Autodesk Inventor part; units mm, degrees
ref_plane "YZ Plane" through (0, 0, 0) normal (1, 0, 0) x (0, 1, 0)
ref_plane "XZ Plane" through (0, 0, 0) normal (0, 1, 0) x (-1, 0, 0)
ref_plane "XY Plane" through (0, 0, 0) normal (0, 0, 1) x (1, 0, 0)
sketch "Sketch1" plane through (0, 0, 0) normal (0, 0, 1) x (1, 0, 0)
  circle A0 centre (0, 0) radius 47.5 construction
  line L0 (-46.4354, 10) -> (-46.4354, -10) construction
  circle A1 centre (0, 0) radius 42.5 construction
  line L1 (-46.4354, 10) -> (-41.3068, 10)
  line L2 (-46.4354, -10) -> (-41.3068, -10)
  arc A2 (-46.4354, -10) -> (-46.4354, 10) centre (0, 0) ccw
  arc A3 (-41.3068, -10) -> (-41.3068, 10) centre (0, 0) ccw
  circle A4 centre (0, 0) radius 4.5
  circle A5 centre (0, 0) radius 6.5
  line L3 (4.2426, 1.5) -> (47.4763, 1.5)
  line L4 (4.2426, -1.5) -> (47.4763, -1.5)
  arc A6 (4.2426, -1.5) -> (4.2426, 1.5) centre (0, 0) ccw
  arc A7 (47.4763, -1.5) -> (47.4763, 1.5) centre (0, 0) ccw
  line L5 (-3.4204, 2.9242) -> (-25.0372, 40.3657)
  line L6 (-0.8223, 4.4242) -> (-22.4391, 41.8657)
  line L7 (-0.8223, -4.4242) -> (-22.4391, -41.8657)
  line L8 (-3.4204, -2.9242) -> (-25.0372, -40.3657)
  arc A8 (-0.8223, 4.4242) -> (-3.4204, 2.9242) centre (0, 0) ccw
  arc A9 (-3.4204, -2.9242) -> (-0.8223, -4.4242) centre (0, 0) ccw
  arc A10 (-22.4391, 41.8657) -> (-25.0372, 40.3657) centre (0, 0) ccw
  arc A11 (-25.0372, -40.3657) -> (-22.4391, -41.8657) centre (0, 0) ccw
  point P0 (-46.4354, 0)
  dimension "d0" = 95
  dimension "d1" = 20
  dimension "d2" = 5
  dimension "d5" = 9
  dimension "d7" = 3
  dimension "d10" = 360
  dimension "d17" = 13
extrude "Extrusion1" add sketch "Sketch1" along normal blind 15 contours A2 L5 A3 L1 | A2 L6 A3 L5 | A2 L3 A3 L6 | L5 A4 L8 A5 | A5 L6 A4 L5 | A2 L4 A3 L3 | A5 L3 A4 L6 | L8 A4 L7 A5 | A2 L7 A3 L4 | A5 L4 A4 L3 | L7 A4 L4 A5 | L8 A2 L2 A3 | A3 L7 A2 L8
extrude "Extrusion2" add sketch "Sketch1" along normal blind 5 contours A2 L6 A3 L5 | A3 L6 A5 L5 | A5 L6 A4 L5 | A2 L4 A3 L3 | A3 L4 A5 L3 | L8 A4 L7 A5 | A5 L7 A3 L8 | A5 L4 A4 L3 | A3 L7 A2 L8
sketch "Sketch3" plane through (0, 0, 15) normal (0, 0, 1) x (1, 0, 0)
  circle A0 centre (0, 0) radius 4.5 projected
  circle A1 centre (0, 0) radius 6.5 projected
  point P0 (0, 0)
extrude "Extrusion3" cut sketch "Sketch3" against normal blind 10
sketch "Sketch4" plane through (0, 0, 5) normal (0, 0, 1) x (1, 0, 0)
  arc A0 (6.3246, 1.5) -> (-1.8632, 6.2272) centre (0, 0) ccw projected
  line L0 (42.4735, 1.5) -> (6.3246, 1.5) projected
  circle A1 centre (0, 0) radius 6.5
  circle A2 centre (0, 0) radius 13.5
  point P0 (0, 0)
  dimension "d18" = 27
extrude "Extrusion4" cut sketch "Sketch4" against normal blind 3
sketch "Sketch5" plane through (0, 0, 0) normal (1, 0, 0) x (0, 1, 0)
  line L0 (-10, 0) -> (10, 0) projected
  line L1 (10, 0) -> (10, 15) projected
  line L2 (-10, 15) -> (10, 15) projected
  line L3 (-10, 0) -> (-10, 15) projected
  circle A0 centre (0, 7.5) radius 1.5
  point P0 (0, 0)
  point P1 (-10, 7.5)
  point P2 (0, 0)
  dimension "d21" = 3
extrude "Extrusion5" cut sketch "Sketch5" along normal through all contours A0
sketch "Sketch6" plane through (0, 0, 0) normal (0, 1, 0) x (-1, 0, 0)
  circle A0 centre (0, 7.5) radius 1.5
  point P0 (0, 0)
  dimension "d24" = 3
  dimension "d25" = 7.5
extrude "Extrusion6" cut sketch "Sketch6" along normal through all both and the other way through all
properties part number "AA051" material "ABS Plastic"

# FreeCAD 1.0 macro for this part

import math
import FreeCAD as App
import Part
import Sketcher

V = App.Vector
Q = App.Units.Quantity

doc = App.newDocument("Part")
body = doc.addObject("PartDesign::Body", "Body")
body.AllowCompound = True

# Sketch on XY plane
sketch1 = body.newObject("Sketcher::SketchObject", "Sketch")
sketch1.AttachmentSupport = (doc.getObject("XY_Plane"), [""])
sketch1.MapMode = "FlatFace"
sketch1.addGeometry([
    Part.LineSegment(V(-46.4, 10, 0), V(-41.3, 10, 0)),  # 0
    Part.ArcOfCircle(Part.Circle(V(0, 0, 0), V(0, 0, 1), 42.5), math.radians(-166), math.radians(166)),  # 1
    Part.LineSegment(V(-41.3, -10, 0), V(-46.4, -10, 0)),  # 2
    Part.ArcOfCircle(Part.Circle(V(0, 0, 0), V(0, 0, 1), 47.5), math.radians(-168), math.radians(168)),  # 3
    Part.Circle(V(0, 0, 0), V(0, 0, 1), 6.5),  # 4
    Part.Circle(V(0, 0, 0), V(0, 0, 1), 4.5),  # 5
], False)
sketch1.addConstraint([
    Sketcher.Constraint("Coincident", 0, 2, 1, 2),
    Sketcher.Constraint("Coincident", 1, 1, 2, 1),
    Sketcher.Constraint("Coincident", 2, 2, 3, 1),
    Sketcher.Constraint("Coincident", 3, 2, 0, 1),
    Sketcher.Constraint("Horizontal", 0),
    Sketcher.Constraint("Horizontal", 2),
    Sketcher.Constraint("Coincident", 1, 3, -1, 1),
    Sketcher.Constraint("Coincident", 3, 3, -1, 1),
    Sketcher.Constraint("Coincident", 4, 3, -1, 1),
    Sketcher.Constraint("Coincident", 5, 3, -1, 1),
    Sketcher.Constraint("Vertical", 0, 2, 1, 1),
    Sketcher.Constraint("Diameter", 4, 13.0),
    Sketcher.Constraint("Diameter", 5, 9.0),
    Sketcher.Constraint("Radius", 3, 47.5),
    Sketcher.Constraint("DistanceY", 1, 1, 0, 2, 20.0),
    Sketcher.Constraint("Radius", 1, 42.5),
])
pad1 = body.newObject("PartDesign::Pad", "Pad")
pad1.Profile = sketch1
pad1.Length = 15

# Sketch on XY plane
sketch2 = body.newObject("Sketcher::SketchObject", "Sketch001")
sketch2.AttachmentSupport = (doc.getObject("XY_Plane"), [""])
sketch2.MapMode = "FlatFace"
sketch2.addGeometry([
    Part.ArcOfCircle(Part.Circle(V(0, 0, 0), V(0, 0, 1), 47.5), math.radians(118.19), math.radians(121.81)),  # 0
    Part.LineSegment(V(-25, 40.4, 0), V(-3.4, 2.9, 0)),  # 1
    Part.ArcOfCircle(Part.Circle(V(0, 0, 0), V(0, 0, 1), 4.5), math.radians(101), math.radians(139)),  # 2
    Part.LineSegment(V(-0.8, 4.4, 0), V(-22.4, 41.9, 0)),  # 3
    Part.ArcOfCircle(Part.Circle(V(0, 0, 0), V(0, 0, 1), 47.5), math.radians(-1.81), math.radians(1.81)),  # 4
    Part.LineSegment(V(47.5, 1.5, 0), V(4.2, 1.5, 0)),  # 5
    Part.ArcOfCircle(Part.Circle(V(0, 0, 0), V(0, 0, 1), 4.5), math.radians(-19), math.radians(19)),  # 6
    Part.LineSegment(V(4.2, -1.5, 0), V(47.5, -1.5, 0)),  # 7
    Part.LineSegment(V(-3.4, -2.9, 0), V(-25, -40.4, 0)),  # 8
    Part.ArcOfCircle(Part.Circle(V(0, 0, 0), V(0, 0, 1), 47.5), math.radians(-121.81), math.radians(-118.19)),  # 9
    Part.LineSegment(V(-22.4, -41.9, 0), V(-0.8, -4.4, 0)),  # 10
    Part.ArcOfCircle(Part.Circle(V(0, 0, 0), V(0, 0, 1), 4.5), math.radians(-139), math.radians(-101)),  # 11
], False)
sketch2.addConstraint([
    Sketcher.Constraint("Coincident", 0, 2, 1, 1),
    Sketcher.Constraint("Coincident", 1, 2, 2, 2),
    Sketcher.Constraint("Coincident", 2, 1, 3, 1),
    Sketcher.Constraint("Coincident", 3, 2, 0, 1),
    Sketcher.Constraint("Coincident", 4, 2, 5, 1),
    Sketcher.Constraint("Coincident", 5, 2, 6, 2),
    Sketcher.Constraint("Coincident", 6, 1, 7, 1),
    Sketcher.Constraint("Coincident", 7, 2, 4, 1),
    Sketcher.Constraint("Coincident", 8, 2, 9, 1),
    Sketcher.Constraint("Coincident", 9, 2, 10, 1),
    Sketcher.Constraint("Coincident", 10, 2, 11, 2),
    Sketcher.Constraint("Coincident", 11, 1, 8, 1),
    Sketcher.Constraint("Horizontal", 5),
    Sketcher.Constraint("Horizontal", 7),
    Sketcher.Constraint("Coincident", 0, 3, -1, 1),
    Sketcher.Constraint("Coincident", 2, 3, -1, 1),
    Sketcher.Constraint("Coincident", 4, 3, -1, 1),
    Sketcher.Constraint("Coincident", 6, 3, -1, 1),
    Sketcher.Constraint("Coincident", 9, 3, -1, 1),
    Sketcher.Constraint("Coincident", 11, 3, -1, 1),
    Sketcher.Constraint("Equal", 0, 4),
    Sketcher.Constraint("Equal", 2, 6),
    Sketcher.Constraint("Equal", 4, 9),
    Sketcher.Constraint("Equal", 6, 11),
    Sketcher.Constraint("Parallel", 1, 3),
    Sketcher.Constraint("Parallel", 8, 10),
    Sketcher.Constraint("Vertical", 5, 2, 6, 1),
    Sketcher.Constraint("Vertical", 0, 2, 8, 2),
    Sketcher.Constraint("Vertical", 3, 2, 9, 2),
    Sketcher.Constraint("Vertical", 2, 1, 10, 2),
    Sketcher.Constraint("Equal", 1, 3),
    Sketcher.Constraint("Radius", 0, 47.5),
    Sketcher.Constraint("Radius", 2, 4.5),
    Sketcher.Constraint("DistanceY", 6, 1, 5, 2, 3.0),
    Sketcher.Constraint("Angle", 1, Q("-60 deg")),
    Sketcher.Constraint("DistanceY", 1, 2, 2, 1, 1.5),
])
pad2 = body.newObject("PartDesign::Pad", "Pad001")
pad2.Profile = sketch2
pad2.Length = 5

# Sketch on XY plane
sketch3 = body.newObject("Sketcher::SketchObject", "Sketch002")
sketch3.AttachmentSupport = (doc.getObject("XY_Plane"), [""])
sketch3.MapMode = "FlatFace"
sketch3.AttachmentOffset = App.Placement(V(0, 0, 15), App.Rotation())
sketch3.addGeometry([
    Part.Circle(V(0, 0, 0), V(0, 0, 1), 6.5),
    Part.Circle(V(0, 0, 0), V(0, 0, 1), 4.5),
], False)
sketch3.addConstraint([
    Sketcher.Constraint("Coincident", 0, 3, -1, 1),
    Sketcher.Constraint("Coincident", 1, 3, -1, 1),
    Sketcher.Constraint("Diameter", 0, 13.0),
    Sketcher.Constraint("Diameter", 1, 9.0),
])
pocket1 = body.newObject("PartDesign::Pocket", "Pocket")
pocket1.Profile = sketch3
pocket1.Length = 10

# Sketch on XY plane
sketch4 = body.newObject("Sketcher::SketchObject", "Sketch003")
sketch4.AttachmentSupport = (doc.getObject("XY_Plane"), [""])
sketch4.MapMode = "FlatFace"
sketch4.AttachmentOffset = App.Placement(V(0, 0, 5), App.Rotation())
sketch4.addGeometry([
    Part.Circle(V(0, 0, 0), V(0, 0, 1), 14),
    Part.ArcOfCircle(Part.Circle(V(0, 0, 0), V(0, 0, 1), 6), math.radians(13), math.radians(107)),
    Part.ArcOfCircle(Part.Circle(V(0, 0, 0), V(0, 0, 1), 6), math.radians(107), math.radians(373)),
], False)
sketch4.addConstraint([
    Sketcher.Constraint("Tangent", 1, 1, 2, 2),
    Sketcher.Constraint("Coincident", 2, 1, 1, 2),
    Sketcher.Constraint("Coincident", 0, 3, -1, 1),
    Sketcher.Constraint("Coincident", 1, 3, -1, 1),
    Sketcher.Constraint("Diameter", 0, 27.0),
    Sketcher.Constraint("Radius", 1, 6.5),
    Sketcher.Constraint("DistanceY", -1, 1, 1, 1, 1.5),
    Sketcher.Constraint("DistanceX", 2, 1, -1, 1, 1.8632),
])
pocket2 = body.newObject("PartDesign::Pocket", "Pocket001")
pocket2.Profile = sketch4
pocket2.Length = 3

# Sketch on YZ plane
sketch5 = body.newObject("Sketcher::SketchObject", "Sketch004")
sketch5.AttachmentSupport = (doc.getObject("YZ_Plane"), [""])
sketch5.MapMode = "FlatFace"
sketch5.addGeometry(Part.Circle(V(0, 7.5, 0), V(0, 0, 1), 1.5), False)
sketch5.addConstraint([
    Sketcher.Constraint("PointOnObject", 0, 3, -2),
    Sketcher.Constraint("Diameter", 0, 3.0),
    Sketcher.Constraint("DistanceY", -1, 1, 0, 3, 7.5),
])
pocket3 = body.newObject("PartDesign::Pocket", "Pocket002")
pocket3.Profile = sketch5
pocket3.Type = "ThroughAll"
pocket3.Reversed = True

# Sketch on XZ plane
sketch6 = body.newObject("Sketcher::SketchObject", "Sketch005")
sketch6.AttachmentSupport = (doc.getObject("XZ_Plane"), [""])
sketch6.MapMode = "FlatFace"
sketch6.addGeometry(Part.Circle(V(0, 7.5, 0), V(0, 0, 1), 1.5), False)
sketch6.addConstraint([
    Sketcher.Constraint("PointOnObject", 0, 3, -2),
    Sketcher.Constraint("Diameter", 0, 3.0),
    Sketcher.Constraint("DistanceY", -1, 1, 0, 3, 7.5),
])
pocket4 = body.newObject("PartDesign::Pocket", "Pocket003")
pocket4.Profile = sketch6
pocket4.Type = "ThroughAll"
pocket4.Midplane = True

doc.recompute()
